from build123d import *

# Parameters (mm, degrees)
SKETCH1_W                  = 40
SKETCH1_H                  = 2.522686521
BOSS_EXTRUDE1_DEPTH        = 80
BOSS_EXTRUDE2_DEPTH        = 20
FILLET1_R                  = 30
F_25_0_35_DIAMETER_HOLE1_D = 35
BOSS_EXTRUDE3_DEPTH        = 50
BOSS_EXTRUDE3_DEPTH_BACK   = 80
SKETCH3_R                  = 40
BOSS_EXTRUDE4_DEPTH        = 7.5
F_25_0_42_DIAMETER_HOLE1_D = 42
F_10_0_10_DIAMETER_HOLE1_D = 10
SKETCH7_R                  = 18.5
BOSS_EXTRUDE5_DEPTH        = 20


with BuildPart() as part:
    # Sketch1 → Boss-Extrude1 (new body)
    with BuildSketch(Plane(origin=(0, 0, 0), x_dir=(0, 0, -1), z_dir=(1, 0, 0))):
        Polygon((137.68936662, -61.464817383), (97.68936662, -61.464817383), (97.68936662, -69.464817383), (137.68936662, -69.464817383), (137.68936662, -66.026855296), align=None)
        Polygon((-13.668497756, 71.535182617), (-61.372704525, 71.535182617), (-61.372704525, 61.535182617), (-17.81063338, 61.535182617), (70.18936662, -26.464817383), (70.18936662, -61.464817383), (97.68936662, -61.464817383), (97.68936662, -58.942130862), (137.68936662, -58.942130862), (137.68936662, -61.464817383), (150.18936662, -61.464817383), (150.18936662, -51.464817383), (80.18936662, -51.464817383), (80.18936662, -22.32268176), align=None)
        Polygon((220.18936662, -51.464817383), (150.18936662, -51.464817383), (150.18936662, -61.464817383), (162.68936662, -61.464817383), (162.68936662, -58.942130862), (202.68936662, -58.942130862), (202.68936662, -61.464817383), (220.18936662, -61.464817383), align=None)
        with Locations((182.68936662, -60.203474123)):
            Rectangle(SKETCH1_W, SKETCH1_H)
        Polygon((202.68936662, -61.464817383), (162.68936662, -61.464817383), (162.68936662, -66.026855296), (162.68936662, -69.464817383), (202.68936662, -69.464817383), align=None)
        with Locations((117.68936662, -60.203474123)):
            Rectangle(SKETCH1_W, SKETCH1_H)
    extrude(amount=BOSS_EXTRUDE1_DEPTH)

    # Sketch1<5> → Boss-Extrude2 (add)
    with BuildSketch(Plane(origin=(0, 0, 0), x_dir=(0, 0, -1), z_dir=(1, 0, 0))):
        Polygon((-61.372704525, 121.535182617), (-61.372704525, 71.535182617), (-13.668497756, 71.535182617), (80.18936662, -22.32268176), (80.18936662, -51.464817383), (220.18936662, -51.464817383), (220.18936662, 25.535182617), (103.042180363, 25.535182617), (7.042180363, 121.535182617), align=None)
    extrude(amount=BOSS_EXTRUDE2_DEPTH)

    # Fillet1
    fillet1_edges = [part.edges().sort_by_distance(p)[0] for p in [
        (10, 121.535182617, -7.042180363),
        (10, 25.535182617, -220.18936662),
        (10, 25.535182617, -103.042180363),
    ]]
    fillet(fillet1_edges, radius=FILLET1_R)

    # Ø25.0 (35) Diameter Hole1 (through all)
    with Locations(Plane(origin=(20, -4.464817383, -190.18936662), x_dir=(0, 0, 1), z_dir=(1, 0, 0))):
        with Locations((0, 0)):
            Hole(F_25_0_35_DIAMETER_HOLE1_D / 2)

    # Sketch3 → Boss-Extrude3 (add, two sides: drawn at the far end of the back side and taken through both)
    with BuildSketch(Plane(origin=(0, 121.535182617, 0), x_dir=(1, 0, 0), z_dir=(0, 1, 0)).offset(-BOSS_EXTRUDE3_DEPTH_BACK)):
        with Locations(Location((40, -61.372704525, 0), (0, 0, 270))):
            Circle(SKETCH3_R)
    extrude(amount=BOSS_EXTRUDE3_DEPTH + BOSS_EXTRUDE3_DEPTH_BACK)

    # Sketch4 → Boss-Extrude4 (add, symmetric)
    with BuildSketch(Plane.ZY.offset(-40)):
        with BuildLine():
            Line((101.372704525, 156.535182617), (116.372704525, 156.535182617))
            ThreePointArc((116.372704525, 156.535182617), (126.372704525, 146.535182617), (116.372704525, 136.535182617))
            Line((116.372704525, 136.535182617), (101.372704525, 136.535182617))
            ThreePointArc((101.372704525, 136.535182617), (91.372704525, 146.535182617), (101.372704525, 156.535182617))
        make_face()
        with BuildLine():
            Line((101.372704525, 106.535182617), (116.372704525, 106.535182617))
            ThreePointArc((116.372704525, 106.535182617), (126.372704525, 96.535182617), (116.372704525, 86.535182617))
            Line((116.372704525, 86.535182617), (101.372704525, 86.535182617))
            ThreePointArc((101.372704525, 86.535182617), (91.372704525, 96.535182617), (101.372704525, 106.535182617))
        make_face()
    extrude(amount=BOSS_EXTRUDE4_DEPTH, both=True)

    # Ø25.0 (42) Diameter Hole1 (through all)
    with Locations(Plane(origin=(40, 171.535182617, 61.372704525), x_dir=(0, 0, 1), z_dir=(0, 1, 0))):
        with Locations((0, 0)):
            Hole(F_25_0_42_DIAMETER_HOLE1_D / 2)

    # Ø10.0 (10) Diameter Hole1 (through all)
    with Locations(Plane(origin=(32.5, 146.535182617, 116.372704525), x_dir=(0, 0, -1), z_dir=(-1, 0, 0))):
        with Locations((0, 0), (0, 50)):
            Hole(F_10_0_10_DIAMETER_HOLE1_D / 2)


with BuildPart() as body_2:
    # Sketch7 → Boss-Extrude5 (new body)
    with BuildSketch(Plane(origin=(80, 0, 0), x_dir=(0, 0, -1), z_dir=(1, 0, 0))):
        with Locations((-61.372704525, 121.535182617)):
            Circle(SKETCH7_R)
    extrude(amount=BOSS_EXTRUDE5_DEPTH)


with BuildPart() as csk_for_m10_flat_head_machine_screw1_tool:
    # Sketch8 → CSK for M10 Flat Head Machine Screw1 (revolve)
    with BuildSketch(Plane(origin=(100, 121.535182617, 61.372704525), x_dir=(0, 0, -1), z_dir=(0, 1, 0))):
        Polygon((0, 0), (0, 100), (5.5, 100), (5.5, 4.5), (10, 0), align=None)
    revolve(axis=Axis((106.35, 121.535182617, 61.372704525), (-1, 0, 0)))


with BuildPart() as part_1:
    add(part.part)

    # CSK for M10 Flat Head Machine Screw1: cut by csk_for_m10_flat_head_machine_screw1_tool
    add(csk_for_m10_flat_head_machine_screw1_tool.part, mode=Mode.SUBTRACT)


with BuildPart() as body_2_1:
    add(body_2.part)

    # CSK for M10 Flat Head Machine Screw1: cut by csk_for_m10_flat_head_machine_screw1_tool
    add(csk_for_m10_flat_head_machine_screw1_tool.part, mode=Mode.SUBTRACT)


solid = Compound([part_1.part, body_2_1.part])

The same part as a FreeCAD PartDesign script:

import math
import FreeCAD as App
import Part
import Sketcher
Q = App.Units.Quantity


def edges_at(feature, points):
    """Names of the edges that pass closest to the given points."""
    edges = feature.Shape.Edges
    near = lambda p: min(range(len(edges)), key=lambda i: edges[i].distToShape(Part.Vertex(*p))[0])
    return sorted({f"Edge{near(p) + 1}" for p in points})


def add_polygon(sketch, points):
    """Adds a closed chain of lines whose ends are joined by coincident constraints."""
    first, n = sketch.GeometryCount, len(points)
    for a, b in zip(points, points[1:] + points[:1]):
        sketch.addGeometry(Part.LineSegment(App.Vector(*a, 0), App.Vector(*b, 0)), False)
    for i in range(n):
        sketch.addConstraint(Sketcher.Constraint("Coincident", first + i, 2, first + (i + 1) % n, 1))

doc = App.newDocument("Part")
body = doc.addObject("PartDesign::Body", "Body")

# Sketch on YZ plane
sketch1 = body.newObject("Sketcher::SketchObject", "Sketch")
sketch1.AttachmentSupport = (doc.getObject("YZ_Plane"), [""])
sketch1.MapMode = "FlatFace"
add_polygon(sketch1, [(-61.464817, -97.689367), (-69.464817, -97.689367), (-69.464817, -137.689367), (-61.464817, -137.689367), (-61.464817, -162.689367), (-69.464817, -162.689367), (-69.464817, -202.689367), (-61.464817, -202.689367), (-61.464817, -220.189367), (-51.464817, -220.189367), (-51.464817, -80.189367), (-22.322682, -80.189367), (71.535183, 13.668498), (71.535183, 61.372705), (61.535183, 61.372705), (61.535183, 17.810633), (-26.464817, -70.189367), (-61.464817, -70.189367)])  # lines 0-17
sketch1.addConstraint([
    Sketcher.Constraint("Horizontal", 0),
    Sketcher.Constraint("Vertical", 1),
    Sketcher.Constraint("Horizontal", 2),
    Sketcher.Constraint("Vertical", 3),
    Sketcher.Constraint("Horizontal", 4),
    Sketcher.Constraint("Vertical", 5),
    Sketcher.Constraint("Horizontal", 6),
    Sketcher.Constraint("Vertical", 7),
    Sketcher.Constraint("Horizontal", 8),
    Sketcher.Constraint("Vertical", 9),
    Sketcher.Constraint("Horizontal", 10),
    Sketcher.Constraint("Vertical", 12),
    Sketcher.Constraint("Horizontal", 13),
    Sketcher.Constraint("Vertical", 14),
    Sketcher.Constraint("Horizontal", 16),
    Sketcher.Constraint("Vertical", 17),
    Sketcher.Constraint("Parallel", 11, 15),
    Sketcher.Constraint("Vertical", 1, 2, 4, 2),
    Sketcher.Constraint("Vertical", 3, 2, 6, 2),
    Sketcher.Constraint("Vertical", 7, 2, 16, 2),
    Sketcher.Constraint("Equal", 8, 13),
    Sketcher.Constraint("Equal", 1, 5),
    Sketcher.Constraint("DistanceX", 0, 2, 0, 1, Q("8 mm")),
    Sketcher.Constraint("DistanceX", 8, 1, 8, 2, Q("10 mm")),
    Sketcher.Constraint("DistanceX", 16, 2, 16, 1, Q("35 mm")),
    Sketcher.Constraint("DistanceY", 1, 2, 1, 1, Q("40 mm")),
    Sketcher.Constraint("DistanceY", 3, 2, 3, 1, Q("25 mm")),
    Sketcher.Constraint("DistanceY", 9, 1, 9, 2, Q("140 mm")),
    Sketcher.Constraint("Angle", 11, Q("45 deg")),
    Sketcher.Constraint("DistanceY", 7, 2, 7, 1, Q("17.5 mm")),
    Sketcher.Constraint("DistanceY", 17, 2, 17, 1, Q("27.5 mm")),
    Sketcher.Constraint("DistanceX", 9, 2, 11, 2, Q("123 mm")),
    Sketcher.Constraint("DistanceY", 14, 2, 14, 1, Q("43.562071 mm")),
    Sketcher.Constraint("DistanceX", 10, 1, 10, 2, Q("29.142136 mm")),
    Sketcher.Constraint("DistanceX", 10, 2, -1, 1, Q("22.322682 mm")),
    Sketcher.Constraint("DistanceY", 0, 2, -1, 1, Q("97.689367 mm")),
])
pad1 = body.newObject("PartDesign::Pad", "Pad")
pad1.Profile = sketch1
pad1.Length = 80

# Sketch on YZ plane
sketch2 = body.newObject("Sketcher::SketchObject", "Sketch001")
sketch2.AttachmentSupport = (doc.getObject("YZ_Plane"), [""])
sketch2.MapMode = "FlatFace"
add_polygon(sketch2, [(121.535183, 61.372705), (71.535183, 61.372705), (71.535183, 13.668498), (-22.322682, -80.189367), (-51.464817, -80.189367), (-51.464817, -220.189367), (25.535183, -220.189367), (25.535183, -103.04218), (121.535183, -7.04218)])  # lines 0-8
sketch2.addConstraint([
    Sketcher.Constraint("Horizontal", 0),
    Sketcher.Constraint("Vertical", 1),
    Sketcher.Constraint("Horizontal", 3),
    Sketcher.Constraint("Vertical", 4),
    Sketcher.Constraint("Horizontal", 5),
    Sketcher.Constraint("Vertical", 6),
    Sketcher.Constraint("Vertical", 8),
    Sketcher.Constraint("Parallel", 2, 7),
    Sketcher.Constraint("DistanceX", 0, 2, 0, 1, Q("50 mm")),
    Sketcher.Constraint("DistanceX", 5, 1, 5, 2, Q("77 mm")),
    Sketcher.Constraint("DistanceY", 4, 2, 4, 1, Q("140 mm")),
    Sketcher.Constraint("Angle", 2, Q("-135 deg")),
    Sketcher.Constraint("DistanceX", 3, 2, 1, 2, Q("123 mm")),
    Sketcher.Constraint("DistanceX", 3, 2, 3, 1, Q("29.142136 mm")),
    Sketcher.Constraint("DistanceY", 1, 2, 1, 1, Q("47.704207 mm")),
    Sketcher.Constraint("DistanceY", 6, 1, 6, 2, Q("117.147186 mm")),
    Sketcher.Constraint("DistanceX", 2, 2, -1, 1, Q("22.322682 mm")),
    Sketcher.Constraint("DistanceY", 6, 2, -1, 1, Q("103.04218 mm")),
])
pad2 = body.newObject("PartDesign::Pad", "Pad001")
pad2.Profile = sketch2
pad2.Length = 20
doc.recompute()

fillet = body.newObject("PartDesign::Fillet", "Fillet")
fillet.Base = (pad2, edges_at(pad2, [(10, 121.535, -7.042), (10, 25.535, -220.189), (10, 25.535, -103.042)]))
fillet.Radius = 30

# Sketch on YZ plane
sketch3 = body.newObject("Sketcher::SketchObject", "Sketch002")
sketch3.AttachmentSupport = (doc.getObject("YZ_Plane"), [""])
sketch3.MapMode = "FlatFace"
sketch3.AttachmentOffset = App.Placement(App.Vector(0, 0, 20), App.Rotation())
sketch3.addGeometry(Part.Circle(App.Vector(-4.464817, -190.189367, 0), App.Vector(0, 0, 1), 17.5), False)
sketch3.addConstraint([
    Sketcher.Constraint("Diameter", 0, Q("35 mm")),
    Sketcher.Constraint("DistanceX", 0, 3, -1, 1, Q("4.464817 mm")),
    Sketcher.Constraint("DistanceY", 0, 3, -1, 1, Q("190.189367 mm")),
])
doc.recompute()
hole = body.newObject("PartDesign::Hole", "Hole")
hole.Profile = sketch3
hole.ThreadType = "None"
hole.Diameter = 35
hole.DepthType = "ThroughAll"

# Sketch on XZ plane
sketch4 = body.newObject("Sketcher::SketchObject", "Sketch003")
sketch4.AttachmentSupport = (doc.getObject("XZ_Plane"), [""])
sketch4.MapMode = "FlatFace"
sketch4.AttachmentOffset = App.Placement(App.Vector(0, 0, -121.535183), App.Rotation())
sketch4.addGeometry(Part.Circle(App.Vector(40, 61.372705, 0), App.Vector(0, 0, 1), 40), False)
sketch4.addConstraint([
    Sketcher.Constraint("Diameter", 0, Q("80 mm")),
    Sketcher.Constraint("DistanceX", -1, 1, 0, 3, Q("40 mm")),
    Sketcher.Constraint("DistanceY", -1, 1, 0, 3, Q("61.372705 mm")),
])
pad3 = body.newObject("PartDesign::Pad", "Pad002")
pad3.Profile = sketch4
pad3.Type = "TwoLengths"
pad3.Length = 50
pad3.Length2 = 80
pad3.Reversed = True

# Sketch on YZ plane
sketch5 = body.newObject("Sketcher::SketchObject", "Sketch004")
sketch5.AttachmentSupport = (doc.getObject("YZ_Plane"), [""])
sketch5.MapMode = "FlatFace"
sketch5.AttachmentOffset = App.Placement(App.Vector(0, 0, 40), App.Rotation())
sketch5.addGeometry([
    Part.LineSegment(App.Vector(156.535183, 116.372705, 0), App.Vector(156.535183, 101.372705, 0)),  # 0
    Part.ArcOfCircle(Part.Circle(App.Vector(146.535183, 101.372705, 0), App.Vector(0, 0, 1), 10), math.radians(180), math.radians(360)),  # 1
    Part.LineSegment(App.Vector(136.535183, 101.372705, 0), App.Vector(136.535183, 116.372705, 0)),  # 2
    Part.ArcOfCircle(Part.Circle(App.Vector(146.535183, 116.372705, 0), App.Vector(0, 0, 1), 10), math.radians(0), math.radians(180)),  # 3
    Part.LineSegment(App.Vector(106.535183, 116.372705, 0), App.Vector(106.535183, 101.372705, 0)),  # 4
    Part.ArcOfCircle(Part.Circle(App.Vector(96.535183, 101.372705, 0), App.Vector(0, 0, 1), 10), math.radians(180), math.radians(360)),  # 5
    Part.LineSegment(App.Vector(86.535183, 101.372705, 0), App.Vector(86.535183, 116.372705, 0)),  # 6
    Part.ArcOfCircle(Part.Circle(App.Vector(96.535183, 116.372705, 0), App.Vector(0, 0, 1), 10), math.radians(0), math.radians(180)),  # 7
], False)
sketch5.addConstraint([
    Sketcher.Constraint("Tangent", 0, 2, 1, 2),
    Sketcher.Constraint("Tangent", 1, 1, 2, 1),
    Sketcher.Constraint("Tangent", 2, 2, 3, 2),
    Sketcher.Constraint("Tangent", 3, 1, 0, 1),
    Sketcher.Constraint("Tangent", 4, 2, 5, 2),
    Sketcher.Constraint("Tangent", 5, 1, 6, 1),
    Sketcher.Constraint("Tangent", 6, 2, 7, 2),
    Sketcher.Constraint("Tangent", 7, 1, 4, 1),
    Sketcher.Constraint("Vertical", 0),
    Sketcher.Constraint("Vertical", 2),
    Sketcher.Constraint("Vertical", 4),
    Sketcher.Constraint("Vertical", 6),
    Sketcher.Constraint("Equal", 3, 5),
    Sketcher.Constraint("Horizontal", 1, 3, 5, 3),
    Sketcher.Constraint("Horizontal", 3, 3, 7, 3),
    Sketcher.Constraint("Radius", 1, Q("10 mm")),
    Sketcher.Constraint("DistanceY", 0, 2, 0, 1, Q("15 mm")),
    Sketcher.Constraint("DistanceX", 5, 3, 1, 3, Q("50 mm")),
    Sketcher.Constraint("DistanceX", -1, 1, 1, 3, Q("146.535183 mm")),
    Sketcher.Constraint("DistanceY", -1, 1, 1, 3, Q("101.372705 mm")),
])
pad4 = body.newObject("PartDesign::Pad", "Pad003")
pad4.Profile = sketch5
pad4.Length = 15
pad4.Midplane = True

# Sketch on XZ plane
sketch6 = body.newObject("Sketcher::SketchObject", "Sketch005")
sketch6.AttachmentSupport = (doc.getObject("XZ_Plane"), [""])
sketch6.MapMode = "FlatFace"
sketch6.AttachmentOffset = App.Placement(App.Vector(0, 0, -171.535183), App.Rotation())
sketch6.addGeometry(Part.Circle(App.Vector(40, 61.372705, 0), App.Vector(0, 0, 1), 21), False)
sketch6.addConstraint([
    Sketcher.Constraint("Diameter", 0, Q("42 mm")),
    Sketcher.Constraint("DistanceX", -1, 1, 0, 3, Q("40 mm")),
    Sketcher.Constraint("DistanceY", -1, 1, 0, 3, Q("61.372705 mm")),
])
doc.recompute()
hole2 = body.newObject("PartDesign::Hole", "Hole001")
hole2.Profile = sketch6
hole2.ThreadType = "None"
hole2.Diameter = 42
hole2.DepthType = "ThroughAll"
hole2.Reversed = True

# Sketch on YZ plane
sketch7 = body.newObject("Sketcher::SketchObject", "Sketch006")
sketch7.AttachmentSupport = (doc.getObject("YZ_Plane"), [""])
sketch7.MapMode = "FlatFace"
sketch7.AttachmentOffset = App.Placement(App.Vector(0, 0, 32.5), App.Rotation())
sketch7.addGeometry([
    Part.Circle(App.Vector(146.535183, 116.372705, 0), App.Vector(0, 0, 1), 5),
    Part.Circle(App.Vector(96.535183, 116.372705, 0), App.Vector(0, 0, 1), 5),
], False)
sketch7.addConstraint([
    Sketcher.Constraint("Equal", 0, 1),
    Sketcher.Constraint("Horizontal", 0, 3, 1, 3),
    Sketcher.Constraint("Diameter", 0, Q("10 mm")),
    Sketcher.Constraint("DistanceX", 1, 3, 0, 3, Q("50 mm")),
    Sketcher.Constraint("DistanceX", -1, 1, 0, 3, Q("146.535183 mm")),
    Sketcher.Constraint("DistanceY", -1, 1, 0, 3, Q("116.372705 mm")),
])
doc.recompute()
hole3 = body.newObject("PartDesign::Hole", "Hole002")
hole3.Profile = sketch7
hole3.ThreadType = "None"
hole3.Diameter = 10
hole3.DepthType = "ThroughAll"
hole3.Reversed = True
body2 = doc.addObject("PartDesign::Body", "Body001")

# Sketch on YZ plane
sketch8 = body2.newObject("Sketcher::SketchObject", "Sketch007")
sketch8.AttachmentSupport = (doc.getObject("YZ_Plane001"), [""])
sketch8.MapMode = "FlatFace"
sketch8.AttachmentOffset = App.Placement(App.Vector(0, 0, 80), App.Rotation())
sketch8.addGeometry(Part.Circle(App.Vector(121.535183, 61.372705, 0), App.Vector(0, 0, 1), 18.5), False)
sketch8.addConstraint([
    Sketcher.Constraint("Diameter", 0, Q("37 mm")),
    Sketcher.Constraint("DistanceX", -1, 1, 0, 3, Q("121.535183 mm")),
    Sketcher.Constraint("DistanceY", -1, 1, 0, 3, Q("61.372705 mm")),
])
pad5 = body2.newObject("PartDesign::Pad", "Pad004")
pad5.Profile = sketch8
pad5.Length = 20
body3 = doc.addObject("PartDesign::Body", "Body002")

# Sketch on XZ plane
sketch9 = body3.newObject("Sketcher::SketchObject", "Sketch008")
sketch9.AttachmentSupport = (doc.getObject("XZ_Plane002"), [""])
sketch9.MapMode = "FlatFace"
sketch9.AttachmentOffset = App.Placement(App.Vector(0, 0, -121.535183), App.Rotation())
add_polygon(sketch9, [(0, 61.372705), (100, 61.372705), (100, 51.372705), (95.5, 55.872705), (0, 55.872705)])  # lines 0-4
sketch9.addGeometry(Part.LineSegment(App.Vector(100, 61.372705, 0), App.Vector(0, 61.372705, 0)), True)  # axis
sketch9.addConstraint([
    Sketcher.Constraint("Horizontal", 0),
    Sketcher.Constraint("Vertical", 1),
    Sketcher.Constraint("Horizontal", 3),
    Sketcher.Constraint("Vertical", 4),
    Sketcher.Constraint("Horizontal", 5),
    Sketcher.Constraint("Coincident", 5, 1, 0, 2),
    Sketcher.Constraint("PointOnObject", 3, 2, -2),
    Sketcher.Constraint("PointOnObject", 5, 2, -2),
    Sketcher.Constraint("DistanceX", 0, 1, 0, 2, Q("100 mm")),
    Sketcher.Constraint("DistanceY", 1, 2, 1, 1, Q("10 mm")),
    Sketcher.Constraint("Angle", 2, Q("135 deg")),
    Sketcher.Constraint("DistanceX", 3, 2, 3, 1, Q("95.5 mm")),
    Sketcher.Constraint("DistanceY", -1, 1, 0, 2, Q("61.372705 mm")),
])
revolution = body3.newObject("PartDesign::Revolution", "Revolution")
revolution.Profile = sketch9
revolution.ReferenceAxis = (sketch9, ["Axis0"])
revolution.Angle = 360
doc.recompute()

body4 = doc.addObject("PartDesign::Body", "Body003")
body4.BaseFeature = body3
boolean = body.newObject("PartDesign::Boolean", "Boolean")
boolean.Type = "Cut"
boolean.addObjects([body4])
doc.recompute()

boolean2 = body2.newObject("PartDesign::Boolean", "Boolean001")
boolean2.Type = "Cut"
boolean2.addObjects([body3])

doc.recompute()
